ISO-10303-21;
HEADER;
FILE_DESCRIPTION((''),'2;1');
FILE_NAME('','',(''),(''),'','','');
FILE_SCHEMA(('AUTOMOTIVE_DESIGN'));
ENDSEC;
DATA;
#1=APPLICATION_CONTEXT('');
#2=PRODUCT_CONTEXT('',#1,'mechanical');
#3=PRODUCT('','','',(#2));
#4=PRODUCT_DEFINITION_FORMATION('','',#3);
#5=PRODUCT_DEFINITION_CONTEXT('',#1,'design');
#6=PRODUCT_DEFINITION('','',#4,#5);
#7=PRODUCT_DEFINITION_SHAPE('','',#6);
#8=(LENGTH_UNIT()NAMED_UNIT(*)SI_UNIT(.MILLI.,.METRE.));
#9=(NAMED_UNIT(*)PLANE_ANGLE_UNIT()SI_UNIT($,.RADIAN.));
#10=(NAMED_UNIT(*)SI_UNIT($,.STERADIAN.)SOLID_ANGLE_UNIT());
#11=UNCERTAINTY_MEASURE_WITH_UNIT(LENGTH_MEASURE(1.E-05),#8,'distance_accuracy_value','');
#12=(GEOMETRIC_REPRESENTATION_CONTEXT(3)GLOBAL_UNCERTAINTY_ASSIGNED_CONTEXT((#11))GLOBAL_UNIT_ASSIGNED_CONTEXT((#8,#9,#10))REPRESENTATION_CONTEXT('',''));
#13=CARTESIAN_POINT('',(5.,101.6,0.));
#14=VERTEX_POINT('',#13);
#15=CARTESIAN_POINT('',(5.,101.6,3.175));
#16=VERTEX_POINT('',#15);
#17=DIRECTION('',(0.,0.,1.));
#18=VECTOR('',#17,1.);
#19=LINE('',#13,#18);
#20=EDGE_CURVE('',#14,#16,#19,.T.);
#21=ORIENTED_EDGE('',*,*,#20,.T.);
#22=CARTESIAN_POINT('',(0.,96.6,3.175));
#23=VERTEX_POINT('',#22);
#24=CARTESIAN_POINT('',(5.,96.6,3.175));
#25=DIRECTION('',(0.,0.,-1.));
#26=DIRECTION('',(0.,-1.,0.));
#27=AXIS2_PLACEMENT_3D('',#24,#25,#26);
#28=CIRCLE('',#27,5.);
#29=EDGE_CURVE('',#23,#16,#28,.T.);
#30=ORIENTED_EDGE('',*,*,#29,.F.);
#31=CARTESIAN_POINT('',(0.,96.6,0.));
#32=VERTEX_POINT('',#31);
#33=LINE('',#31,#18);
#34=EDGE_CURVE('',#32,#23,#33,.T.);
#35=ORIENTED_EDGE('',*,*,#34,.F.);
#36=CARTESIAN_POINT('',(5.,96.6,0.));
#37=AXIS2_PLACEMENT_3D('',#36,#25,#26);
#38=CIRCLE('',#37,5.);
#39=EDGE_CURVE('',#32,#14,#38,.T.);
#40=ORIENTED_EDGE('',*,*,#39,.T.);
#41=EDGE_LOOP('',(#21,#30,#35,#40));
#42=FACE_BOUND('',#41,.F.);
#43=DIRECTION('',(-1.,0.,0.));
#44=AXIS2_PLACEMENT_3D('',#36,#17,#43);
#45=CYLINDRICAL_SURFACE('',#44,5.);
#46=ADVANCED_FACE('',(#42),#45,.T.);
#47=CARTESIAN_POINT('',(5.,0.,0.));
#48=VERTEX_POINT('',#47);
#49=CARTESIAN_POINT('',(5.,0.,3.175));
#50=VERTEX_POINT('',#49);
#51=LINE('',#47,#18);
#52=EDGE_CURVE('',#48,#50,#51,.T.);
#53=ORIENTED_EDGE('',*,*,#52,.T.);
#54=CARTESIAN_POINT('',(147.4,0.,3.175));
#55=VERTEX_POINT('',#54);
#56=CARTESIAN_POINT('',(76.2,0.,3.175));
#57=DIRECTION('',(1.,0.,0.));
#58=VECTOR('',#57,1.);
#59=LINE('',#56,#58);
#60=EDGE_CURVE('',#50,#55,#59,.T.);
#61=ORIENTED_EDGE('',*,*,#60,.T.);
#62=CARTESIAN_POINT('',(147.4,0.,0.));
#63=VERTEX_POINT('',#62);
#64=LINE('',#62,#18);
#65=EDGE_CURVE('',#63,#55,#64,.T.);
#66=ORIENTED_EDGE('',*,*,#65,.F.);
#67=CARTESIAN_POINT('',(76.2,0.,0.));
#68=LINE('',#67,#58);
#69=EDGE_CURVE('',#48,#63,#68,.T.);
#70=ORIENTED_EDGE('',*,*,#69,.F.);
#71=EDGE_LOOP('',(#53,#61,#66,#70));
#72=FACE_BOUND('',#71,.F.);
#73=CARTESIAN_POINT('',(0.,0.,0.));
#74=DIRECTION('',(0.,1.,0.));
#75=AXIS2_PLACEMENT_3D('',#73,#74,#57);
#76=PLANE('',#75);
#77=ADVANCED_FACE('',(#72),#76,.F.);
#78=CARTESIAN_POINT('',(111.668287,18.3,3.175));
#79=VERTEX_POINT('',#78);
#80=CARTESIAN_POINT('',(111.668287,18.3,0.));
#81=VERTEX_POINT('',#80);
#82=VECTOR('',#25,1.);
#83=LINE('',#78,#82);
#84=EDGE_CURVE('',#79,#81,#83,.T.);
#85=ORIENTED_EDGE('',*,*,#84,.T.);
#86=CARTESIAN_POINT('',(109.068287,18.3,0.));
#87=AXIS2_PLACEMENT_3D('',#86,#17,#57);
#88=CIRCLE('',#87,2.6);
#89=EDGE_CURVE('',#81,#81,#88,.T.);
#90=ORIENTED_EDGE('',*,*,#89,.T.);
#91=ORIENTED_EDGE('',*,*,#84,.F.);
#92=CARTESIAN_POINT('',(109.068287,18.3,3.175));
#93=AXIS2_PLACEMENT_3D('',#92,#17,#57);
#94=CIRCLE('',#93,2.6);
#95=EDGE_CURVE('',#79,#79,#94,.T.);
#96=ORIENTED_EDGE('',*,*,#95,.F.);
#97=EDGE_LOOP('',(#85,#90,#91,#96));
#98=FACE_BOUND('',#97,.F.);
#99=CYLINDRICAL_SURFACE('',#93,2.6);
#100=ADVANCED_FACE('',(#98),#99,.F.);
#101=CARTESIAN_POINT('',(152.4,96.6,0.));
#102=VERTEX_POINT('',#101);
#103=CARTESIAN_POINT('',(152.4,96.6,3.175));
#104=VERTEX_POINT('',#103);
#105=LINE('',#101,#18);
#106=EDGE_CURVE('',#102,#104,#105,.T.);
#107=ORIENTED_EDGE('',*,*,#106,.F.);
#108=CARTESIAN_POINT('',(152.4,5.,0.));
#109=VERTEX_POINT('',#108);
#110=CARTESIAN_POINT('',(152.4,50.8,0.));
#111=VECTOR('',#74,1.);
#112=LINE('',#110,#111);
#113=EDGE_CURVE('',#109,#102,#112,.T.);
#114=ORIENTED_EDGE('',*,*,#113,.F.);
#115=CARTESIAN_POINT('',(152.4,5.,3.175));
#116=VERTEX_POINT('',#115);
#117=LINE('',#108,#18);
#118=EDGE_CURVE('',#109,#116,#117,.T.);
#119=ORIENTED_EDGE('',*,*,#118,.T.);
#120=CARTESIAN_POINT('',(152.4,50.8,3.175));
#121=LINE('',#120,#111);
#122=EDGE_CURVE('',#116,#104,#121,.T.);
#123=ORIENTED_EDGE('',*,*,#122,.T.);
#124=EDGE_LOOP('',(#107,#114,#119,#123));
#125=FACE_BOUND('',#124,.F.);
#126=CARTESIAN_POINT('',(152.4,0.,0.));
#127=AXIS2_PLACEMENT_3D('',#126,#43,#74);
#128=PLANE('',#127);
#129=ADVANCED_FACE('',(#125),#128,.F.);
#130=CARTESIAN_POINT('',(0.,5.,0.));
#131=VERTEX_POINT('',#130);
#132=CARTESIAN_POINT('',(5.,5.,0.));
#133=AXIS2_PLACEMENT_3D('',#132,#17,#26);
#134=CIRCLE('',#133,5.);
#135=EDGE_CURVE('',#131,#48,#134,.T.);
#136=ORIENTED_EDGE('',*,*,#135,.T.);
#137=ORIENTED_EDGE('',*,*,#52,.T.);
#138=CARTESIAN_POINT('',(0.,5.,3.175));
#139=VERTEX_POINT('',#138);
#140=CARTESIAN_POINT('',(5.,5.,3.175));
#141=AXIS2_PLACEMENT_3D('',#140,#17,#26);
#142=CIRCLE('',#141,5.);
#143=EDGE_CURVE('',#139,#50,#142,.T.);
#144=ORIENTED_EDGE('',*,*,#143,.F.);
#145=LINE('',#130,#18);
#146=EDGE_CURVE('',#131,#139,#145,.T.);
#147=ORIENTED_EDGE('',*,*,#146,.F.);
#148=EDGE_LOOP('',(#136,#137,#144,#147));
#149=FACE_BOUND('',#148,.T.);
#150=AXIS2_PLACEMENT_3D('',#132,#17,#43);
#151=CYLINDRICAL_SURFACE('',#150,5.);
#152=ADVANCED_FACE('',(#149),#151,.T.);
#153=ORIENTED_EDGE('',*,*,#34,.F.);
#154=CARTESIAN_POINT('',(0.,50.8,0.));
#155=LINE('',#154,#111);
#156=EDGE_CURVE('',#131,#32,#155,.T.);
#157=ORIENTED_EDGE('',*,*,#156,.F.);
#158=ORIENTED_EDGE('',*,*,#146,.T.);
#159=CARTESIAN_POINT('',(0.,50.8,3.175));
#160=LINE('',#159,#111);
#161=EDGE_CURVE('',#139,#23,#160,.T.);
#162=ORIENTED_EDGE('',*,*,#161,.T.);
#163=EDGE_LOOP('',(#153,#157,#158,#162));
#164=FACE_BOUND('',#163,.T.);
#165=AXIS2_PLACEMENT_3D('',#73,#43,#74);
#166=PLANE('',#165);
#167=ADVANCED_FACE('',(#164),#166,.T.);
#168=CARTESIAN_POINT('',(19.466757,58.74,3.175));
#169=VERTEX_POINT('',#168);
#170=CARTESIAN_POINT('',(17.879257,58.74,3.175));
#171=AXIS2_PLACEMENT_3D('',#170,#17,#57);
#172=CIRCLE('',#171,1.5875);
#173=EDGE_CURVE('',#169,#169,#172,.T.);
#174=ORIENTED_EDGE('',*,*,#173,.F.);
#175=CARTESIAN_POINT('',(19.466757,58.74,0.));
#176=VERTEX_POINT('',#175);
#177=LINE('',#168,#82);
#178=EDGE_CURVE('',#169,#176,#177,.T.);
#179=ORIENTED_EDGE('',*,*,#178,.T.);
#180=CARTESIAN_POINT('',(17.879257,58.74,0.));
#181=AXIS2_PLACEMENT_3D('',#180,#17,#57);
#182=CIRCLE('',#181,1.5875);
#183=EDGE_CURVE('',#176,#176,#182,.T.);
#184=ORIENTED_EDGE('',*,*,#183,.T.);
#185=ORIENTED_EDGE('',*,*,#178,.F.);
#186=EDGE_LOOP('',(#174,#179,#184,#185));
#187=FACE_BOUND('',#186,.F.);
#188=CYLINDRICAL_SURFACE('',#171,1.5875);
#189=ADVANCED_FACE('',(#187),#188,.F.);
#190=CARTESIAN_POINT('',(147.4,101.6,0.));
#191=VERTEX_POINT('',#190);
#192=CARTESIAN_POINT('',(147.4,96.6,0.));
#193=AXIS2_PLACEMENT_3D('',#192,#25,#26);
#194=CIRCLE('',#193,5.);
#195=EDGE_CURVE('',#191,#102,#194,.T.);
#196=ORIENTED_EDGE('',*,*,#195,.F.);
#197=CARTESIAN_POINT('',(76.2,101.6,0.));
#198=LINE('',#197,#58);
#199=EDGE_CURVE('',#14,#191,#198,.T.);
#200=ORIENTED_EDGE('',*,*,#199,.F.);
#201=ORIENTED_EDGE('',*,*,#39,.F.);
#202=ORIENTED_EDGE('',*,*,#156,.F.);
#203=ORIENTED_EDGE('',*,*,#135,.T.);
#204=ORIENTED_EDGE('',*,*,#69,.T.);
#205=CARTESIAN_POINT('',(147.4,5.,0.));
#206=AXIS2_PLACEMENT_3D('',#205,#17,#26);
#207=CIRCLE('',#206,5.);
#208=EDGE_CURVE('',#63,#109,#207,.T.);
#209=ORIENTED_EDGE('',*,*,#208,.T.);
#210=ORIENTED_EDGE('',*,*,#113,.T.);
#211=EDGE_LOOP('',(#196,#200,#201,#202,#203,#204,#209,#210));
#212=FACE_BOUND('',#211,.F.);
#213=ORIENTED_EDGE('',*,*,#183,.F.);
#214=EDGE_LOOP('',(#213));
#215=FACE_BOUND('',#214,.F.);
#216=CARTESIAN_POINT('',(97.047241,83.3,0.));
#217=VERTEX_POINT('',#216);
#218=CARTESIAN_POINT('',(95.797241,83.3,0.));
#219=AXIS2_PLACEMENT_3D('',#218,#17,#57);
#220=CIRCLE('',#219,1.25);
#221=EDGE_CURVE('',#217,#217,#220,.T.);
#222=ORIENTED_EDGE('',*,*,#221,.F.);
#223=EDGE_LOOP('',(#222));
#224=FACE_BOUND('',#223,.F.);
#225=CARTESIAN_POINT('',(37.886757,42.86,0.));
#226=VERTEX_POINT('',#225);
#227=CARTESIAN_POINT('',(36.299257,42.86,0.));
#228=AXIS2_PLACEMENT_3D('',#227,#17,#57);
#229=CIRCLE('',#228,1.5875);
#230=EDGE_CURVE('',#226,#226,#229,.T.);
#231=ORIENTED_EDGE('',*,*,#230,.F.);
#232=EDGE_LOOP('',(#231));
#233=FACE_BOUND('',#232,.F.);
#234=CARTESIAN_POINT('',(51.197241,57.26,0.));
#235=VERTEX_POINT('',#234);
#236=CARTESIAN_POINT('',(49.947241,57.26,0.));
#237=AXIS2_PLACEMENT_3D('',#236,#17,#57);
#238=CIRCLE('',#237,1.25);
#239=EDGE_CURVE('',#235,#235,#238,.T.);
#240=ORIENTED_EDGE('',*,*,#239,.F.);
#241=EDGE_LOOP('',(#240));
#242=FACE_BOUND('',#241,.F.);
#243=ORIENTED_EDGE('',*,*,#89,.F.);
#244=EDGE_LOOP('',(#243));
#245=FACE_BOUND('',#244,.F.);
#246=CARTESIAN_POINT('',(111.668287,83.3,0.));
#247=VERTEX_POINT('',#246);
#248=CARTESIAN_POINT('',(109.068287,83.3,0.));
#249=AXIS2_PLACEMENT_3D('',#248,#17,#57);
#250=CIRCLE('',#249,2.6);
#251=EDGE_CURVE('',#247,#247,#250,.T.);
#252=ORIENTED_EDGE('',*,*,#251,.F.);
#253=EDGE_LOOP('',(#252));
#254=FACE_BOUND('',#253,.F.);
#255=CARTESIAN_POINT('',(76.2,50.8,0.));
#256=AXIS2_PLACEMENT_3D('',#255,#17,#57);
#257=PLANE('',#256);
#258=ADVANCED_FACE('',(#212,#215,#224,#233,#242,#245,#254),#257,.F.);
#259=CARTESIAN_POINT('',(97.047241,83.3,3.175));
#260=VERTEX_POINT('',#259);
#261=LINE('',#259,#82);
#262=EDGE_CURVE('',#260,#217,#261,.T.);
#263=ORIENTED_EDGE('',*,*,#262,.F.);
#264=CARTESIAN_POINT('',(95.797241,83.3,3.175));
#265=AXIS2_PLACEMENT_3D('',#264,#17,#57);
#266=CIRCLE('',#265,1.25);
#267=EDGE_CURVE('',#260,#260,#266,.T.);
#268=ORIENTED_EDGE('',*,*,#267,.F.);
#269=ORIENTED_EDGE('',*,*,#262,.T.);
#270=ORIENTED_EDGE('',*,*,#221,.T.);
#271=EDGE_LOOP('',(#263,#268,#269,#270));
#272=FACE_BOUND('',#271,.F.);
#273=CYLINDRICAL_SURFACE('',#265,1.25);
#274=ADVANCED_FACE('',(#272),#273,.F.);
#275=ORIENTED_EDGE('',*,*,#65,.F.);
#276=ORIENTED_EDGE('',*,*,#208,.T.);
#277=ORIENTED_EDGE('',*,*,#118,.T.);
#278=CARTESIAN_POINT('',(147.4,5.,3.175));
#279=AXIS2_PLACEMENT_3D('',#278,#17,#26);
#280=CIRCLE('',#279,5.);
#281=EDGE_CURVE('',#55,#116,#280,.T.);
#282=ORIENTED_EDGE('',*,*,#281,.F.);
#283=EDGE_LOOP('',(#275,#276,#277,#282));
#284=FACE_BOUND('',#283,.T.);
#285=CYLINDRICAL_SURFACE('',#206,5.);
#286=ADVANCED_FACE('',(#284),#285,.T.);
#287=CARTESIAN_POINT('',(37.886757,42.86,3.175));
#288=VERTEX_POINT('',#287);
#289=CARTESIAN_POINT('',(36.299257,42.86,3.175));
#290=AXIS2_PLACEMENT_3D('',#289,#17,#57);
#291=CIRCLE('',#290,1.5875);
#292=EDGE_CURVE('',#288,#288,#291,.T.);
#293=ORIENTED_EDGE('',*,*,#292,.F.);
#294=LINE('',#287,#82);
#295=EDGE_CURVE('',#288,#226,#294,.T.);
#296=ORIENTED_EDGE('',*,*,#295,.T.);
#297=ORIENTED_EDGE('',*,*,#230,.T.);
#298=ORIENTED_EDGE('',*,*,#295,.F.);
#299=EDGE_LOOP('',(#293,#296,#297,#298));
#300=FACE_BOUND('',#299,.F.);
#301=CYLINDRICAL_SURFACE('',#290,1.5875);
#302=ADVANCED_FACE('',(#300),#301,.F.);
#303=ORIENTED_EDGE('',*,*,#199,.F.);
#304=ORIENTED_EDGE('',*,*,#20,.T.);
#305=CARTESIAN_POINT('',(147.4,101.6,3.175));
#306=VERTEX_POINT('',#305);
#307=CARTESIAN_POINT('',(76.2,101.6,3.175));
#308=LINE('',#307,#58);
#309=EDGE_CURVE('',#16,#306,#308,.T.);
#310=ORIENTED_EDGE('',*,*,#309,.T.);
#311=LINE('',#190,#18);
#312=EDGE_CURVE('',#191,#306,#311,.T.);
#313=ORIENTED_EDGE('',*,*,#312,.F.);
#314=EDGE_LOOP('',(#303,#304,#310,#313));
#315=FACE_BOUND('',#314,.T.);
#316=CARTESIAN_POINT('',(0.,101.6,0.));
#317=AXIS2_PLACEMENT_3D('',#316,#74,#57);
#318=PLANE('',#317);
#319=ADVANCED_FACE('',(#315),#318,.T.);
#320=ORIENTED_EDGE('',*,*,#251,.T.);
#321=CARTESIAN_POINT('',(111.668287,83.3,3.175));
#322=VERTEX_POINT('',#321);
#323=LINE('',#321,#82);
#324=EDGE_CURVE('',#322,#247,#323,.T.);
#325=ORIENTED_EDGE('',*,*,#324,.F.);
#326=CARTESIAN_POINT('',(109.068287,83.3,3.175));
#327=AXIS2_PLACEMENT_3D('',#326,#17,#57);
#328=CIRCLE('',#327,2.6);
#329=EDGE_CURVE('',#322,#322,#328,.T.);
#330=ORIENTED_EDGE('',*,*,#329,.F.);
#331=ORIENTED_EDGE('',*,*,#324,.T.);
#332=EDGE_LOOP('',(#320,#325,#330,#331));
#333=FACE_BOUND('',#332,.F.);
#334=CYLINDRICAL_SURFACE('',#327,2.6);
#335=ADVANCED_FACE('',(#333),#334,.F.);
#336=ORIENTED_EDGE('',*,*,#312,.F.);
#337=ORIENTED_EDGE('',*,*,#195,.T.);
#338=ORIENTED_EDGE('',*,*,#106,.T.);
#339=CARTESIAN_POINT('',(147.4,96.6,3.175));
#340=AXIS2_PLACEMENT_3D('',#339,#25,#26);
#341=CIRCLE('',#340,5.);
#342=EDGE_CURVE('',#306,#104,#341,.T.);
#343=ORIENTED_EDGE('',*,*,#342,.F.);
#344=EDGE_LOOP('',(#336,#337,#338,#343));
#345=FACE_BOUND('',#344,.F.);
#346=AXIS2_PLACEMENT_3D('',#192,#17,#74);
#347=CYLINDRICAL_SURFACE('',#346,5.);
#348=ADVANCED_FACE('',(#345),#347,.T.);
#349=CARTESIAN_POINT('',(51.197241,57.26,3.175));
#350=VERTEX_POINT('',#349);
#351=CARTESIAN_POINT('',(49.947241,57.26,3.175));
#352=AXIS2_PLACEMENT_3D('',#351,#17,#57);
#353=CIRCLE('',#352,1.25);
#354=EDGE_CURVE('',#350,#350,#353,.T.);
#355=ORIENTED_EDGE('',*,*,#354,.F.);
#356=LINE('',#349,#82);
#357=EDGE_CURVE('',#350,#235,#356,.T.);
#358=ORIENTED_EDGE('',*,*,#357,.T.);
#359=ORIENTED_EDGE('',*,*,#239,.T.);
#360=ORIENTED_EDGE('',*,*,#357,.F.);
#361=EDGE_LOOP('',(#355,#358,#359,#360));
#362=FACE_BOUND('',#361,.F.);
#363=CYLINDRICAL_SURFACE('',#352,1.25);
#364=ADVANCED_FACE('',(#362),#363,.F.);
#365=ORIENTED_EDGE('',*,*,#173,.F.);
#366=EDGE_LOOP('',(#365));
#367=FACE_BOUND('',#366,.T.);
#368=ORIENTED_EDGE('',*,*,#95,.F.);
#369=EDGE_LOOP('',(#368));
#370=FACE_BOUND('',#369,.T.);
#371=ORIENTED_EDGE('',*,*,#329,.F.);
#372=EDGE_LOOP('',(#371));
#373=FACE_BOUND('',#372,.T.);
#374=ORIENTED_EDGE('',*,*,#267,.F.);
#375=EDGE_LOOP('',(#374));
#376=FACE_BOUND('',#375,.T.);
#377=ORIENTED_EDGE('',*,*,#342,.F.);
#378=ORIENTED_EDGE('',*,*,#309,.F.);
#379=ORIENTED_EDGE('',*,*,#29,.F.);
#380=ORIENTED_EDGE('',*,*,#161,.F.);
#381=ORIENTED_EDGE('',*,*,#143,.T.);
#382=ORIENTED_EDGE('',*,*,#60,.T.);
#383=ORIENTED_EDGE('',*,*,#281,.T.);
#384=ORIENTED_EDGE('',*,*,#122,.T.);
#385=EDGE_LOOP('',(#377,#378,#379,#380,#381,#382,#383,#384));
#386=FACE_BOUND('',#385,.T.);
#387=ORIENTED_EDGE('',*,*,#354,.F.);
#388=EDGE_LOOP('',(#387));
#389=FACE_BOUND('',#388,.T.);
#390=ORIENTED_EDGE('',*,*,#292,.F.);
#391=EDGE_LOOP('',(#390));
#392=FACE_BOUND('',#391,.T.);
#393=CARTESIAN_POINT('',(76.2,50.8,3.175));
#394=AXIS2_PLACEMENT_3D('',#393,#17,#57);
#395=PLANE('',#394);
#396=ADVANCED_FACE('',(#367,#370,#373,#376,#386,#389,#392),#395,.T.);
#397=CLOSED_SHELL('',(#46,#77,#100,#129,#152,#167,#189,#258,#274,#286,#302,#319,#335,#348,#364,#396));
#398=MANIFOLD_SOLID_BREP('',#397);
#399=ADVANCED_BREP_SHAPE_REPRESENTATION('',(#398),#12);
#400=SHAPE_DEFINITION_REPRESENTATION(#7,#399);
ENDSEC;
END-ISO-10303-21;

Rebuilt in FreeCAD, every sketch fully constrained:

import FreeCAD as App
import Part
import Sketcher

V = App.Vector


def edges_at(feature, points):
    """Names of the edges that pass closest to the given points."""
    edges = feature.Shape.Edges
    near = lambda p: min(range(len(edges)), key=lambda i: edges[i].distToShape(Part.Vertex(*p))[0])
    return sorted({f"Edge{near(p) + 1}" for p in points})


def add_polygon(sketch, points):
    """Adds a closed chain of lines whose ends are joined by coincident constraints."""
    first, n = sketch.GeometryCount, len(points)
    for a, b in zip(points, points[1:] + points[:1]):
        sketch.addGeometry(Part.LineSegment(App.Vector(*a, 0), App.Vector(*b, 0)), False)
    for i in range(n):
        sketch.addConstraint(Sketcher.Constraint("Coincident", first + i, 2, first + (i + 1) % n, 1))

doc = App.newDocument("Part")
body = doc.addObject("PartDesign::Body", "Body")

# Sketch on XY plane
sketch1 = doc.addObject("Sketcher::SketchObject", "Sketch")
body.addObject(sketch1)
sketch1.AttachmentSupport = (doc.XY_Plane, [""])
sketch1.MapMode = "FlatFace"
add_polygon(sketch1, [(0, 102), (0, 0), (152, 0), (152, 102)])  # lines 0-3
sketch1.addConstraint(Sketcher.Constraint("Vertical", 0))
sketch1.addConstraint(Sketcher.Constraint("Horizontal", 1))
sketch1.addConstraint(Sketcher.Constraint("Vertical", 2))
sketch1.addConstraint(Sketcher.Constraint("Horizontal", 3))
sketch1.addConstraint(Sketcher.Constraint("Coincident", 0, 2, -1, 1))
sketch1.addConstraint(Sketcher.Constraint("DistanceX", 1, 1, 1, 2, 152.4))
sketch1.addConstraint(Sketcher.Constraint("DistanceY", 0, 2, 0, 1, 101.6))
pad1 = doc.addObject("PartDesign::Pad", "Pad")
body.addObject(pad1)
pad1.Profile = sketch1
pad1.Length = 3.175

# Sketch on XY plane
sketch2 = doc.addObject("Sketcher::SketchObject", "Sketch001")
body.addObject(sketch2)
sketch2.AttachmentSupport = (doc.XY_Plane, [""])
sketch2.MapMode = "FlatFace"
sketch2.AttachmentOffset = App.Placement(V(0, 0, 3.175), App.Rotation())
sketch2.addGeometry(Part.Circle(V(109.1, 18.3, 0), V(0, 0, 1), 2.6), False)
sketch2.addConstraint(Sketcher.Constraint("Diameter", 0, 5.2))
sketch2.addConstraint(Sketcher.Constraint("DistanceY", -1, 1, 0, 3, 18.3))
sketch2.addConstraint(Sketcher.Constraint("DistanceX", -1, 1, 0, 3, 109.068287))
pocket1 = doc.addObject("PartDesign::Pocket", "Pocket")
body.addObject(pocket1)
pocket1.Profile = sketch2
pocket1.Type = "UpToFirst"

# Sketch on XY plane
sketch3 = doc.addObject("Sketcher::SketchObject", "Sketch002")
body.addObject(sketch3)
sketch3.AttachmentSupport = (doc.XY_Plane, [""])
sketch3.MapMode = "FlatFace"
sketch3.AttachmentOffset = App.Placement(V(0, 0, 3.175), App.Rotation())
sketch3.addGeometry(Part.Circle(V(109.1, 83.3, 0), V(0, 0, 1), 2.6), False)
sketch3.addConstraint(Sketcher.Constraint("Diameter", 0, 5.2))
sketch3.addConstraint(Sketcher.Constraint("DistanceY", -1, 1, 0, 3, 83.3))
sketch3.addConstraint(Sketcher.Constraint("DistanceX", -1, 1, 0, 3, 109.068287))
pocket2 = doc.addObject("PartDesign::Pocket", "Pocket001")
body.addObject(pocket2)
pocket2.Profile = sketch3
pocket2.Type = "UpToFirst"

# Sketch on XY plane
sketch4 = doc.addObject("Sketcher::SketchObject", "Sketch003")
body.addObject(sketch4)
sketch4.AttachmentSupport = (doc.XY_Plane, [""])
sketch4.MapMode = "FlatFace"
sketch4.AttachmentOffset = App.Placement(V(0, 0, 3.175), App.Rotation())
sketch4.addGeometry(Part.Circle(V(95.8, 83.3, 0), V(0, 0, 1), 1.2), False)
sketch4.addConstraint(Sketcher.Constraint("Diameter", 0, 2.5))
sketch4.addConstraint(Sketcher.Constraint("DistanceY", -1, 1, 0, 3, 83.3))
sketch4.addConstraint(Sketcher.Constraint("DistanceX", -1, 1, 0, 3, 95.797241))
pocket3 = doc.addObject("PartDesign::Pocket", "Pocket002")
body.addObject(pocket3)
pocket3.Profile = sketch4
pocket3.Type = "UpToFirst"

# Sketch on XY plane
sketch5 = doc.addObject("Sketcher::SketchObject", "Sketch004")
body.addObject(sketch5)
sketch5.AttachmentSupport = (doc.XY_Plane, [""])
sketch5.MapMode = "FlatFace"
sketch5.AttachmentOffset = App.Placement(V(0, 0, 3.175), App.Rotation())
sketch5.addGeometry(Part.Circle(V(49.9, 57.3, 0), V(0, 0, 1), 1.2), False)
sketch5.addConstraint(Sketcher.Constraint("Diameter", 0, 2.5))
sketch5.addConstraint(Sketcher.Constraint("DistanceY", -1, 1, 0, 3, 57.26))
sketch5.addConstraint(Sketcher.Constraint("DistanceX", -1, 1, 0, 3, 49.947241))
pocket4 = doc.addObject("PartDesign::Pocket", "Pocket003")
body.addObject(pocket4)
pocket4.Profile = sketch5
pocket4.Type = "UpToFirst"

# Sketch on XY plane
sketch6 = doc.addObject("Sketcher::SketchObject", "Sketch005")
body.addObject(sketch6)
sketch6.AttachmentSupport = (doc.XY_Plane, [""])
sketch6.MapMode = "FlatFace"
sketch6.AttachmentOffset = App.Placement(V(0, 0, 3.175), App.Rotation())
sketch6.addGeometry(Part.Circle(V(17.9, 58.7, 0), V(0, 0, 1), 1.6), False)
sketch6.addConstraint(Sketcher.Constraint("Diameter", 0, 3.175))
sketch6.addConstraint(Sketcher.Constraint("DistanceY", -1, 1, 0, 3, 58.74))
sketch6.addConstraint(Sketcher.Constraint("DistanceX", -1, 1, 0, 3, 17.879257))
pocket5 = doc.addObject("PartDesign::Pocket", "Pocket004")
body.addObject(pocket5)
pocket5.Profile = sketch6
pocket5.Type = "UpToFirst"

# Sketch on XY plane
sketch7 = doc.addObject("Sketcher::SketchObject", "Sketch006")
body.addObject(sketch7)
sketch7.AttachmentSupport = (doc.XY_Plane, [""])
sketch7.MapMode = "FlatFace"
sketch7.AttachmentOffset = App.Placement(V(0, 0, 3.175), App.Rotation())
sketch7.addGeometry(Part.Circle(V(36.3, 42.9, 0), V(0, 0, 1), 1.6), False)
sketch7.addConstraint(Sketcher.Constraint("Diameter", 0, 3.175))
sketch7.addConstraint(Sketcher.Constraint("DistanceY", -1, 1, 0, 3, 42.86))
sketch7.addConstraint(Sketcher.Constraint("DistanceX", -1, 1, 0, 3, 36.299257))
pocket6 = doc.addObject("PartDesign::Pocket", "Pocket005")
body.addObject(pocket6)
pocket6.Profile = sketch7
pocket6.Type = "UpToFirst"
doc.recompute()

fillet = doc.addObject("PartDesign::Fillet", "Fillet")
body.addObject(fillet)
fillet.Base = (pocket6, edges_at(pocket6, [
    (0, 101.6, 1.587),
    (152.4, 101.6, 1.587),
    (152.4, 0, 1.587),
    (0, 0, 1.587),
]))
fillet.Radius = 5

doc.recompute()
